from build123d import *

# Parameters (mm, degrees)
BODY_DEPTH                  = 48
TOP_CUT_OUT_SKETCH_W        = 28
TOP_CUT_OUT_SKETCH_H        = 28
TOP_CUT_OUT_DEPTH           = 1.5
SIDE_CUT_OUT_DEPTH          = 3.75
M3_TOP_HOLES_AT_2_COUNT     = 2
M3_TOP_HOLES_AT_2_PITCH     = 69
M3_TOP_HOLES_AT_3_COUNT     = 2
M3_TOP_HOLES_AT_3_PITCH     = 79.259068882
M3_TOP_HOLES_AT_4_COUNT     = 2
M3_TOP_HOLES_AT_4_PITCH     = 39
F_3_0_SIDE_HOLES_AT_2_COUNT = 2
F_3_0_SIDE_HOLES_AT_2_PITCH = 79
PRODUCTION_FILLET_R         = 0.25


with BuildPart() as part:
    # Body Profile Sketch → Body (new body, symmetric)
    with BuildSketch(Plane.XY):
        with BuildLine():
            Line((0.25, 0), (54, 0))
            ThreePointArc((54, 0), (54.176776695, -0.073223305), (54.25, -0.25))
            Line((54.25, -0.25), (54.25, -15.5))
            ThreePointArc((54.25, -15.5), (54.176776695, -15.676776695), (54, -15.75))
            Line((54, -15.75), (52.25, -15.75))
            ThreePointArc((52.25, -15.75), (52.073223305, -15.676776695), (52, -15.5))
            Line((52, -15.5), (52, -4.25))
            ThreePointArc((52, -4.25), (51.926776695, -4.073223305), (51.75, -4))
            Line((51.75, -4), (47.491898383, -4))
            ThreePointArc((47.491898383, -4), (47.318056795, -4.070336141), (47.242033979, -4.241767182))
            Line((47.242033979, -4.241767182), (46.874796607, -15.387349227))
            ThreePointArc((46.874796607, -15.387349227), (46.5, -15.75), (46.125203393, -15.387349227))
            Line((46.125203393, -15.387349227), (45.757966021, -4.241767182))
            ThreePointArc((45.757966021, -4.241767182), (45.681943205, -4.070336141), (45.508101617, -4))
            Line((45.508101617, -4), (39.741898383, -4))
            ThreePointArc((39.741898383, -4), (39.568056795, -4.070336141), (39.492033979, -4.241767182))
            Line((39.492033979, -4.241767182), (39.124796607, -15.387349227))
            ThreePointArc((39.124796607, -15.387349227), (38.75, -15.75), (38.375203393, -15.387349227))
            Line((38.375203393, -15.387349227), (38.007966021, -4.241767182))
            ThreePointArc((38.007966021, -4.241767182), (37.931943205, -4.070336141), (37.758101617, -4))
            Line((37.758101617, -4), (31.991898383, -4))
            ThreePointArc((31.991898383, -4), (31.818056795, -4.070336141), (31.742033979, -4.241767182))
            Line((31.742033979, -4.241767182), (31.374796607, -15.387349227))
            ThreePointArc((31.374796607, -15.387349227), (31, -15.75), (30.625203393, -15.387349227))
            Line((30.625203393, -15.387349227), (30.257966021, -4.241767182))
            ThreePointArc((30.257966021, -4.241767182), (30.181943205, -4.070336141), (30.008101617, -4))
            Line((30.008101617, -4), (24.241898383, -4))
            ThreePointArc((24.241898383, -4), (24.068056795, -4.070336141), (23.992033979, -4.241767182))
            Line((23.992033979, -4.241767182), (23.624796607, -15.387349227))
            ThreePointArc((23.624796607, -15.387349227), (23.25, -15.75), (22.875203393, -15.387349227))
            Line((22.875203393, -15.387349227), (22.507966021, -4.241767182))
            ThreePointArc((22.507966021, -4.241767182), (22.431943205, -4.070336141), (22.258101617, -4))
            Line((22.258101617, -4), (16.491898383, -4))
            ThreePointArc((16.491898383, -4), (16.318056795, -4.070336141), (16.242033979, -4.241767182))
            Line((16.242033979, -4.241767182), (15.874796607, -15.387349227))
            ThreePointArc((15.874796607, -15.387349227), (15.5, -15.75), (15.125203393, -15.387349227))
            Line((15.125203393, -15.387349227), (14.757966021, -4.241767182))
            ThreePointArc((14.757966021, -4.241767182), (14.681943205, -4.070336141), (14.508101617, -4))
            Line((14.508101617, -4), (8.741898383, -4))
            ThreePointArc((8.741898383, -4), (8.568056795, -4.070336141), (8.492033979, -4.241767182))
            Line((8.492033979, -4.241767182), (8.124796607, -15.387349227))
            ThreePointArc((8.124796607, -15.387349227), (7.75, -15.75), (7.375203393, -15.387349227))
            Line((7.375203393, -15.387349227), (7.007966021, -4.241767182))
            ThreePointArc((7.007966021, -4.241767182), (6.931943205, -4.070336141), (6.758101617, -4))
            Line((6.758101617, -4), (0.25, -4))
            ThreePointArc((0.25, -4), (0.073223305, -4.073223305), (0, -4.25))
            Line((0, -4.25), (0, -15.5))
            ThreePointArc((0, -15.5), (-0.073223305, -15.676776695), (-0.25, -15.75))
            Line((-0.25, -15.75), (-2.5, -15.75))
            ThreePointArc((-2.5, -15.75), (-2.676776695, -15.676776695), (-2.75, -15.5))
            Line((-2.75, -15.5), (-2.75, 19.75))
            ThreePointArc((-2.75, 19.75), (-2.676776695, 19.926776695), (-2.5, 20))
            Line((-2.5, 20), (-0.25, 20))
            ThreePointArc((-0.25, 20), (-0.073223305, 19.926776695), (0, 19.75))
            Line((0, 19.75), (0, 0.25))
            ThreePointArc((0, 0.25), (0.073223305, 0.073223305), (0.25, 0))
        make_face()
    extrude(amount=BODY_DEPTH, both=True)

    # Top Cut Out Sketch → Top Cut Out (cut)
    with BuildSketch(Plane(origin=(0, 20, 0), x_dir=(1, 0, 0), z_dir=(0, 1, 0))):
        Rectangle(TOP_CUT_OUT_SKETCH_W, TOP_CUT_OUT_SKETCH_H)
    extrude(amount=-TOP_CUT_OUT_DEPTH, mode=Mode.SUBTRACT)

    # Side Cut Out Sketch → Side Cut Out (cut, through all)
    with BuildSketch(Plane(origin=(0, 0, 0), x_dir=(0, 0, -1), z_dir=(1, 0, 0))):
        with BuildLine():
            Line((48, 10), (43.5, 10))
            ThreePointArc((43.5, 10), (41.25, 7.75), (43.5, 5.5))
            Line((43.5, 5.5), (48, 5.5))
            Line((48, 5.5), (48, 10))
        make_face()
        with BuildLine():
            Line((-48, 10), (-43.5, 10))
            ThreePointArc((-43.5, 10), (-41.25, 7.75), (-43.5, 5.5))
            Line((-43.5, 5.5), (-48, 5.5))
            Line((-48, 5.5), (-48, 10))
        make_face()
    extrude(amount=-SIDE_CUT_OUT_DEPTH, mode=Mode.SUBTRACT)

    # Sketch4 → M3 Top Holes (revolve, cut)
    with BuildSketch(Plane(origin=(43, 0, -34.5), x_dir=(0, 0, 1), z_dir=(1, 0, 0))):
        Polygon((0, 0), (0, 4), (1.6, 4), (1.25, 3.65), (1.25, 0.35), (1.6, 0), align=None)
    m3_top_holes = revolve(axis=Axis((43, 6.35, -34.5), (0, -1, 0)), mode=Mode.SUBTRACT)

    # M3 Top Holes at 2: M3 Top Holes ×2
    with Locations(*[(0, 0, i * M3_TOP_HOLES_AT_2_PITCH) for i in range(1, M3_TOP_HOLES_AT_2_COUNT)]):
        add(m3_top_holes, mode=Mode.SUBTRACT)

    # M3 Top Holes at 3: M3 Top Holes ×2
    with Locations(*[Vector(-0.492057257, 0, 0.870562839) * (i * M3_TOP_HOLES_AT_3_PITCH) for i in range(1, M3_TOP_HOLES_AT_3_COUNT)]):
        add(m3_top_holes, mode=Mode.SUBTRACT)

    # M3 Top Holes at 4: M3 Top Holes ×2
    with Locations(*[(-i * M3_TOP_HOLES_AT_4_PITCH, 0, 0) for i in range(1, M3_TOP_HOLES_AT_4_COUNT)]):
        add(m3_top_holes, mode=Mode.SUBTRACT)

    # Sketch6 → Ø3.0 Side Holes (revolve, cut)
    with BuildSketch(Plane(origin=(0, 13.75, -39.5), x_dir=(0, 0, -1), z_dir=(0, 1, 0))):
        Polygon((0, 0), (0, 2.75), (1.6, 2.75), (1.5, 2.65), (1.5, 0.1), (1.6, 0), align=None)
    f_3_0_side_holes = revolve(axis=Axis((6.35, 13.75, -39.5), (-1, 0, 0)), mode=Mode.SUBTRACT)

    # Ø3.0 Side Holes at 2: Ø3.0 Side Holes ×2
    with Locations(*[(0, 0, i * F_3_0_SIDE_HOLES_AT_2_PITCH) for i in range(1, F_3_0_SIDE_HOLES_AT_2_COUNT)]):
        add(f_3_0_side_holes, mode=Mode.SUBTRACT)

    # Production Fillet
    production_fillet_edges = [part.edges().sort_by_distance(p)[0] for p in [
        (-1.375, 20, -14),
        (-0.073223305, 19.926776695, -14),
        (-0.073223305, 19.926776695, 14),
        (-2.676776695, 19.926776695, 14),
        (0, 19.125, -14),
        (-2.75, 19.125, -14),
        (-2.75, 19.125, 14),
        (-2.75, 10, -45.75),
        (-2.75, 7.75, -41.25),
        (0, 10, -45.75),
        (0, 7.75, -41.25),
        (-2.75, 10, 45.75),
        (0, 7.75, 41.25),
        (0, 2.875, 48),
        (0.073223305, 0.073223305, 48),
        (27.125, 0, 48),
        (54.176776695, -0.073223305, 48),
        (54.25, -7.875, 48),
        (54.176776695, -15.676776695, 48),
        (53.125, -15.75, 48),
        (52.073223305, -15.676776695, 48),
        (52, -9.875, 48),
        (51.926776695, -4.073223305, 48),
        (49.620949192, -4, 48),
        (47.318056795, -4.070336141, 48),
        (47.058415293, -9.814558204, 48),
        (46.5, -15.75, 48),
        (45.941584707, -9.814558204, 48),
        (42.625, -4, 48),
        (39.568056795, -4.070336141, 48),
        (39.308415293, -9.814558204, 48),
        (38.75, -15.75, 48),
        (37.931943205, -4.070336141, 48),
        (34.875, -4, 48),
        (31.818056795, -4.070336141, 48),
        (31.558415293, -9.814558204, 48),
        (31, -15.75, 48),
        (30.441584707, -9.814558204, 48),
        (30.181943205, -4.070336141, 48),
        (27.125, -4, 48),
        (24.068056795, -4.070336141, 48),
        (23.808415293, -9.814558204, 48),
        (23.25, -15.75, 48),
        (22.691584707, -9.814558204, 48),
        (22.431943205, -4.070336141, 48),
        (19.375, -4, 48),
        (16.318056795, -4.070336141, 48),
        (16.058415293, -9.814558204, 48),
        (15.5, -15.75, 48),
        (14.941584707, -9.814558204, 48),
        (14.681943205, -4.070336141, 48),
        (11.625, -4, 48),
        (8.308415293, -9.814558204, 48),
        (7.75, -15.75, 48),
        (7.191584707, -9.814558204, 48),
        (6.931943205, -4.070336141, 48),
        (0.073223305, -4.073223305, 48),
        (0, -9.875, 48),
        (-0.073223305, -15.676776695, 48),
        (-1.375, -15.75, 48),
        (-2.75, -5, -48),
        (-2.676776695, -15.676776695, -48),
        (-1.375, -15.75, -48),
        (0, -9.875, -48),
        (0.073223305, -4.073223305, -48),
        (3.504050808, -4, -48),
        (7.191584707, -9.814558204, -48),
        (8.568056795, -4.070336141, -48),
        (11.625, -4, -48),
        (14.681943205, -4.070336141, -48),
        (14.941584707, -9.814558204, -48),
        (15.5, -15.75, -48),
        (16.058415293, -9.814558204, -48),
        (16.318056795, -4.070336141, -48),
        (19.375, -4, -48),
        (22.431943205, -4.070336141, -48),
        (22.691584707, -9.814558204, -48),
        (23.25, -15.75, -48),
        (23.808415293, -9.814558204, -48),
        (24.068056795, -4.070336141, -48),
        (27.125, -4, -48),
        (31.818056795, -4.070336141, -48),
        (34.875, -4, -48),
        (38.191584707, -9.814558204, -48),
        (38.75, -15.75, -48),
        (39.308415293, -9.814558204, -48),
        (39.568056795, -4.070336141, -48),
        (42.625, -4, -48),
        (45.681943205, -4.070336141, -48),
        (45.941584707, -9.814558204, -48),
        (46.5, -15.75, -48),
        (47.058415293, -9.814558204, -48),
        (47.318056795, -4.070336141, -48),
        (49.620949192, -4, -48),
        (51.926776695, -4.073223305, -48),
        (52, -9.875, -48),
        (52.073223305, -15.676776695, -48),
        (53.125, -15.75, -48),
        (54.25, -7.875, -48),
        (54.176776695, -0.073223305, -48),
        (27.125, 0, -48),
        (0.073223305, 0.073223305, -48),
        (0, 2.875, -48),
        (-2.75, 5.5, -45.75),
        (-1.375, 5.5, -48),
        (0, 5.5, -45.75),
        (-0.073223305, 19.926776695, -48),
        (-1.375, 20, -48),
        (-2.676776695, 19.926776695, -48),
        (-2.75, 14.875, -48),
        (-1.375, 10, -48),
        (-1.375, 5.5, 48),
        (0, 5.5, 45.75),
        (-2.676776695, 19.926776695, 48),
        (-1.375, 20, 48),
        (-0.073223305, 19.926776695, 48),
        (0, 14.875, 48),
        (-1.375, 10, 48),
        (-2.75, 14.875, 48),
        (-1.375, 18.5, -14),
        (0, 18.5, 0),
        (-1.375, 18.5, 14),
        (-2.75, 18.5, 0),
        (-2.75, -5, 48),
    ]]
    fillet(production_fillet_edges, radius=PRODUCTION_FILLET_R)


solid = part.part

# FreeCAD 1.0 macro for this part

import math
import FreeCAD as App
import Part
import Sketcher
Q = App.Units.Quantity


def edges_at(feature, points):
    """Names of the edges that pass closest to the given points."""
    edges = feature.Shape.Edges
    near = lambda p: min(range(len(edges)), key=lambda i: edges[i].distToShape(Part.Vertex(*p))[0])
    return sorted({f"Edge{near(p) + 1}" for p in points})

doc = App.newDocument("Part")
params = doc.addObject("Spreadsheet::Sheet", "Params")
for row, (alias, value) in enumerate([
    ("sketch1_radius", "0.25 mm"),
    ("sketch1_height", "19.5 mm"),
    ("sketch1_width", "2.25 mm"),
    ("sketch1_height2", "35.25 mm"),
    ("pad1_length", "96 mm"),
    ("sketch2_width", "28 mm"),
    ("pocket1_length", "1.5 mm"),
    ("sketch3_radius", "2.25 mm"),
    ("sketch4_width", "4 mm"),
    ("sketch4_width2", "3.3 mm"),
    ("sketch4_height", "1.6 mm"),
    ("groove_angle", "360 deg"),
    ("linearpattern_pitch", "69 mm"),
    ("linearpattern2_pitch", "79.259069 mm"),
    ("linearpattern3_pitch", "39 mm"),
    ("sketch5_height", "1.6 mm"),
    ("sketch5_width", "2.75 mm"),
    ("sketch5_width2", "2.55 mm"),
    ("groove2_angle", "360 deg"),
    ("linearpattern4_pitch", "79 mm"),
    ("fillet_radius", "0.25 mm"),
], start=1):
    params.set(f"A{row}", alias)
    params.set(f"B{row}", "=" + value)
    params.setAlias(f"B{row}", alias)

body = doc.addObject("PartDesign::Body", "Body")

# Sketch on XY plane
sketch1 = body.newObject("Sketcher::SketchObject", "Sketch")
sketch1.AttachmentSupport = (doc.getObject("XY_Plane"), [""])
sketch1.MapMode = "FlatFace"
sketch1.addGeometry([
    Part.LineSegment(App.Vector(54, 0, 0), App.Vector(0.25, 0, 0)),  # 0
    Part.ArcOfCircle(Part.Circle(App.Vector(0.25, 0.25, 0), App.Vector(0, 0, 1), 0.25), math.radians(-180), math.radians(-90)),  # 1
    Part.LineSegment(App.Vector(0, 0.25, 0), App.Vector(0, 19.75, 0)),  # 2
    Part.ArcOfCircle(Part.Circle(App.Vector(-0.25, 19.75, 0), App.Vector(0, 0, 1), 0.25), math.radians(0), math.radians(90)),  # 3
    Part.LineSegment(App.Vector(-0.25, 20, 0), App.Vector(-2.5, 20, 0)),  # 4
    Part.ArcOfCircle(Part.Circle(App.Vector(-2.5, 19.75, 0), App.Vector(0, 0, 1), 0.25), math.radians(90), math.radians(180)),  # 5
    Part.LineSegment(App.Vector(-2.75, 19.75, 0), App.Vector(-2.75, -15.5, 0)),  # 6
    Part.ArcOfCircle(Part.Circle(App.Vector(-2.5, -15.5, 0), App.Vector(0, 0, 1), 0.25), math.radians(-180), math.radians(-90)),  # 7
    Part.LineSegment(App.Vector(-2.5, -15.75, 0), App.Vector(-0.25, -15.75, 0)),  # 8
    Part.ArcOfCircle(Part.Circle(App.Vector(-0.25, -15.5, 0), App.Vector(0, 0, 1), 0.25), math.radians(-90), math.radians(0)),  # 9
    Part.LineSegment(App.Vector(0, -15.5, 0), App.Vector(0, -4.25, 0)),  # 10
    Part.ArcOfCircle(Part.Circle(App.Vector(0.25, -4.25, 0), App.Vector(0, 0, 1), 0.25), math.radians(90), math.radians(180)),  # 11
    Part.LineSegment(App.Vector(0.25, -4, 0), App.Vector(6.76, -4, 0)),  # 12
    Part.ArcOfCircle(Part.Circle(App.Vector(6.76, -4.25, 0), App.Vector(0, 0, 1), 0.25), math.radians(2), math.radians(90)),  # 13
    Part.LineSegment(App.Vector(7.01, -4.24, 0), App.Vector(7.38, -15.39, 0)),  # 14
    Part.ArcOfCircle(Part.Circle(App.Vector(7.75, -15.38, 0), App.Vector(0, 0, 1), 0.38), math.radians(-178), math.radians(-2)),  # 15
    Part.LineSegment(App.Vector(8.12, -15.39, 0), App.Vector(8.49, -4.24, 0)),  # 16
    Part.ArcOfCircle(Part.Circle(App.Vector(8.74, -4.25, 0), App.Vector(0, 0, 1), 0.25), math.radians(90), math.radians(178)),  # 17
    Part.LineSegment(App.Vector(8.74, -4, 0), App.Vector(14.51, -4, 0)),  # 18
    Part.ArcOfCircle(Part.Circle(App.Vector(14.51, -4.25, 0), App.Vector(0, 0, 1), 0.25), math.radians(2), math.radians(90)),  # 19
    Part.LineSegment(App.Vector(14.76, -4.24, 0), App.Vector(15.13, -15.39, 0)),  # 20
    Part.ArcOfCircle(Part.Circle(App.Vector(15.5, -15.38, 0), App.Vector(0, 0, 1), 0.38), math.radians(-178), math.radians(-2)),  # 21
    Part.LineSegment(App.Vector(15.87, -15.39, 0), App.Vector(16.24, -4.24, 0)),  # 22
    Part.ArcOfCircle(Part.Circle(App.Vector(16.49, -4.25, 0), App.Vector(0, 0, 1), 0.25), math.radians(90), math.radians(178)),  # 23
    Part.LineSegment(App.Vector(16.49, -4, 0), App.Vector(22.26, -4, 0)),  # 24
    Part.ArcOfCircle(Part.Circle(App.Vector(22.26, -4.25, 0), App.Vector(0, 0, 1), 0.25), math.radians(2), math.radians(90)),  # 25
    Part.LineSegment(App.Vector(22.51, -4.24, 0), App.Vector(22.88, -15.39, 0)),  # 26
    Part.ArcOfCircle(Part.Circle(App.Vector(23.25, -15.38, 0), App.Vector(0, 0, 1), 0.38), math.radians(-178), math.radians(-2)),  # 27
    Part.LineSegment(App.Vector(23.62, -15.39, 0), App.Vector(23.99, -4.24, 0)),  # 28
    Part.ArcOfCircle(Part.Circle(App.Vector(24.24, -4.25, 0), App.Vector(0, 0, 1), 0.25), math.radians(90), math.radians(178)),  # 29
    Part.LineSegment(App.Vector(24.24, -4, 0), App.Vector(30.01, -4, 0)),  # 30
    Part.ArcOfCircle(Part.Circle(App.Vector(30.01, -4.25, 0), App.Vector(0, 0, 1), 0.25), math.radians(2), math.radians(90)),  # 31
    Part.LineSegment(App.Vector(30.26, -4.24, 0), App.Vector(30.63, -15.39, 0)),  # 32
    Part.ArcOfCircle(Part.Circle(App.Vector(31, -15.38, 0), App.Vector(0, 0, 1), 0.38), math.radians(-178), math.radians(-2)),  # 33
    Part.LineSegment(App.Vector(31.37, -15.39, 0), App.Vector(31.74, -4.24, 0)),  # 34
    Part.ArcOfCircle(Part.Circle(App.Vector(31.99, -4.25, 0), App.Vector(0, 0, 1), 0.25), math.radians(90), math.radians(178)),  # 35
    Part.LineSegment(App.Vector(31.99, -4, 0), App.Vector(37.76, -4, 0)),  # 36
    Part.ArcOfCircle(Part.Circle(App.Vector(37.76, -4.25, 0), App.Vector(0, 0, 1), 0.25), math.radians(2), math.radians(90)),  # 37
    Part.LineSegment(App.Vector(38.01, -4.24, 0), App.Vector(38.38, -15.39, 0)),  # 38
    Part.ArcOfCircle(Part.Circle(App.Vector(38.75, -15.38, 0), App.Vector(0, 0, 1), 0.38), math.radians(-178), math.radians(-2)),  # 39
    Part.LineSegment(App.Vector(39.12, -15.39, 0), App.Vector(39.49, -4.24, 0)),  # 40
    Part.ArcOfCircle(Part.Circle(App.Vector(39.74, -4.25, 0), App.Vector(0, 0, 1), 0.25), math.radians(90), math.radians(178)),  # 41
    Part.LineSegment(App.Vector(39.74, -4, 0), App.Vector(45.51, -4, 0)),  # 42
    Part.ArcOfCircle(Part.Circle(App.Vector(45.51, -4.25, 0), App.Vector(0, 0, 1), 0.25), math.radians(2), math.radians(90)),  # 43
    Part.LineSegment(App.Vector(45.76, -4.24, 0), App.Vector(46.13, -15.39, 0)),  # 44
    Part.ArcOfCircle(Part.Circle(App.Vector(46.5, -15.38, 0), App.Vector(0, 0, 1), 0.38), math.radians(-178), math.radians(-2)),  # 45
    Part.LineSegment(App.Vector(46.87, -15.39, 0), App.Vector(47.24, -4.24, 0)),  # 46
    Part.ArcOfCircle(Part.Circle(App.Vector(47.49, -4.25, 0), App.Vector(0, 0, 1), 0.25), math.radians(90), math.radians(178)),  # 47
    Part.LineSegment(App.Vector(47.49, -4, 0), App.Vector(51.75, -4, 0)),  # 48
    Part.ArcOfCircle(Part.Circle(App.Vector(51.75, -4.25, 0), App.Vector(0, 0, 1), 0.25), math.radians(0), math.radians(90)),  # 49
    Part.LineSegment(App.Vector(52, -4.25, 0), App.Vector(52, -15.5, 0)),  # 50
    Part.ArcOfCircle(Part.Circle(App.Vector(52.25, -15.5, 0), App.Vector(0, 0, 1), 0.25), math.radians(-180), math.radians(-90)),  # 51
    Part.LineSegment(App.Vector(52.25, -15.75, 0), App.Vector(54, -15.75, 0)),  # 52
    Part.ArcOfCircle(Part.Circle(App.Vector(54, -15.5, 0), App.Vector(0, 0, 1), 0.25), math.radians(-90), math.radians(0)),  # 53
    Part.LineSegment(App.Vector(54.25, -15.5, 0), App.Vector(54.25, -0.25, 0)),  # 54
    Part.ArcOfCircle(Part.Circle(App.Vector(54, -0.25, 0), App.Vector(0, 0, 1), 0.25), math.radians(0), math.radians(90)),  # 55
], False)
sketch1.addConstraint([
    Sketcher.Constraint("Tangent", 0, 2, 1, 2),
    Sketcher.Constraint("Tangent", 1, 1, 2, 1),
    Sketcher.Constraint("Tangent", 2, 2, 3, 1),
    Sketcher.Constraint("Tangent", 3, 2, 4, 1),
    Sketcher.Constraint("Tangent", 4, 2, 5, 1),
    Sketcher.Constraint("Tangent", 5, 2, 6, 1),
    Sketcher.Constraint("Tangent", 6, 2, 7, 1),
    Sketcher.Constraint("Tangent", 7, 2, 8, 1),
    Sketcher.Constraint("Tangent", 8, 2, 9, 1),
    Sketcher.Constraint("Tangent", 9, 2, 10, 1),
    Sketcher.Constraint("Tangent", 10, 2, 11, 2),
    Sketcher.Constraint("Tangent", 11, 1, 12, 1),
    Sketcher.Constraint("Tangent", 12, 2, 13, 2),
    Sketcher.Constraint("Tangent", 13, 1, 14, 1),
    Sketcher.Constraint("Tangent", 14, 2, 15, 1),
    Sketcher.Constraint("Tangent", 15, 2, 16, 1),
    Sketcher.Constraint("Tangent", 16, 2, 17, 2),
    Sketcher.Constraint("Tangent", 17, 1, 18, 1),
    Sketcher.Constraint("Tangent", 18, 2, 19, 2),
    Sketcher.Constraint("Tangent", 19, 1, 20, 1),
    Sketcher.Constraint("Tangent", 20, 2, 21, 1),
    Sketcher.Constraint("Tangent", 21, 2, 22, 1),
    Sketcher.Constraint("Tangent", 22, 2, 23, 2),
    Sketcher.Constraint("Tangent", 23, 1, 24, 1),
    Sketcher.Constraint("Tangent", 24, 2, 25, 2),
    Sketcher.Constraint("Tangent", 25, 1, 26, 1),
    Sketcher.Constraint("Tangent", 26, 2, 27, 1),
    Sketcher.Constraint("Tangent", 27, 2, 28, 1),
    Sketcher.Constraint("Tangent", 28, 2, 29, 2),
    Sketcher.Constraint("Tangent", 29, 1, 30, 1),
    Sketcher.Constraint("Tangent", 30, 2, 31, 2),
    Sketcher.Constraint("Tangent", 31, 1, 32, 1),
    Sketcher.Constraint("Tangent", 32, 2, 33, 1),
    Sketcher.Constraint("Tangent", 33, 2, 34, 1),
    Sketcher.Constraint("Tangent", 34, 2, 35, 2),
    Sketcher.Constraint("Tangent", 35, 1, 36, 1),
    Sketcher.Constraint("Tangent", 36, 2, 37, 2),
    Sketcher.Constraint("Tangent", 37, 1, 38, 1),
    Sketcher.Constraint("Tangent", 38, 2, 39, 1),
    Sketcher.Constraint("Tangent", 39, 2, 40, 1),
    Sketcher.Constraint("Tangent", 40, 2, 41, 2),
    Sketcher.Constraint("Tangent", 41, 1, 42, 1),
    Sketcher.Constraint("Tangent", 42, 2, 43, 2),
    Sketcher.Constraint("Tangent", 43, 1, 44, 1),
    Sketcher.Constraint("Tangent", 44, 2, 45, 1),
    Sketcher.Constraint("Tangent", 45, 2, 46, 1),
    Sketcher.Constraint("Tangent", 46, 2, 47, 2),
    Sketcher.Constraint("Tangent", 47, 1, 48, 1),
    Sketcher.Constraint("Tangent", 48, 2, 49, 2),
    Sketcher.Constraint("Tangent", 49, 1, 50, 1),
    Sketcher.Constraint("Tangent", 50, 2, 51, 1),
    Sketcher.Constraint("Tangent", 51, 2, 52, 1),
    Sketcher.Constraint("Tangent", 52, 2, 53, 1),
    Sketcher.Constraint("Tangent", 53, 2, 54, 1),
    Sketcher.Constraint("Tangent", 54, 2, 55, 1),
    Sketcher.Constraint("Tangent", 55, 2, 0, 1),
    Sketcher.Constraint("Horizontal", 0),
    Sketcher.Constraint("Vertical", 2),
    Sketcher.Constraint("Horizontal", 4),
    Sketcher.Constraint("Vertical", 6),
    Sketcher.Constraint("Horizontal", 8),
    Sketcher.Constraint("Vertical", 10),
    Sketcher.Constraint("Horizontal", 12),
    Sketcher.Constraint("Horizontal", 18),
    Sketcher.Constraint("Horizontal", 24),
    Sketcher.Constraint("Horizontal", 30),
    Sketcher.Constraint("Horizontal", 36),
    Sketcher.Constraint("Horizontal", 42),
    Sketcher.Constraint("Horizontal", 48),
    Sketcher.Constraint("Vertical", 50),
    Sketcher.Constraint("Horizontal", 52),
    Sketcher.Constraint("Vertical", 54),
    Sketcher.Constraint("Equal", 1, 3),
    Sketcher.Constraint("Equal", 3, 5),
    Sketcher.Constraint("Equal", 5, 7),
    Sketcher.Constraint("Equal", 7, 9),
    Sketcher.Constraint("Equal", 9, 11),
    Sketcher.Constraint("Equal", 11, 13),
    Sketcher.Constraint("Equal", 13, 17),
    Sketcher.Constraint("Equal", 17, 19),
    Sketcher.Constraint("Equal", 15, 21),
    Sketcher.Constraint("Equal", 19, 23),
    Sketcher.Constraint("Equal", 23, 25),
    Sketcher.Constraint("Equal", 21, 27),
    Sketcher.Constraint("Equal", 25, 29),
    Sketcher.Constraint("Equal", 29, 31),
    Sketcher.Constraint("Equal", 27, 33),
    Sketcher.Constraint("Equal", 31, 35),
    Sketcher.Constraint("Equal", 35, 37),
    Sketcher.Constraint("Equal", 33, 39),
    Sketcher.Constraint("Equal", 37, 41),
    Sketcher.Constraint("Equal", 41, 43),
    Sketcher.Constraint("Equal", 39, 45),
    Sketcher.Constraint("Equal", 43, 47),
    Sketcher.Constraint("Equal", 47, 49),
    Sketcher.Constraint("Equal", 49, 51),
    Sketcher.Constraint("Equal", 51, 53),
    Sketcher.Constraint("Equal", 53, 55),
    Sketcher.Constraint("PointOnObject", 0, 2, -1),
    Sketcher.Constraint("PointOnObject", 1, 1, -2),
    Sketcher.Constraint("PointOnObject", 9, 2, -2),
    Sketcher.Constraint("Parallel", 14, 20),
    Sketcher.Constraint("Parallel", 16, 22),
    Sketcher.Constraint("Parallel", 20, 26),
    Sketcher.Constraint("Parallel", 22, 28),
    Sketcher.Constraint("Parallel", 26, 32),
    Sketcher.Constraint("Parallel", 28, 34),
    Sketcher.Constraint("Parallel", 32, 38),
    Sketcher.Constraint("Parallel", 34, 40),
    Sketcher.Constraint("Parallel", 38, 44),
    Sketcher.Constraint("Parallel", 40, 46),
    Sketcher.Constraint("Horizontal", 13, 3, 17, 3),
    Sketcher.Constraint("Horizontal", 15, 3, 21, 3),
    Sketcher.Constraint("Horizontal", 19, 3, 23, 3),
    Sketcher.Constraint("Horizontal", 21, 3, 27, 3),
    Sketcher.Constraint("Horizontal", 25, 3, 29, 3),
    Sketcher.Constraint("Horizontal", 27, 3, 33, 3),
    Sketcher.Constraint("Horizontal", 31, 3, 35, 3),
    Sketcher.Constraint("Horizontal", 33, 3, 39, 3),
    Sketcher.Constraint("Horizontal", 37, 3, 41, 3),
    Sketcher.Constraint("Horizontal", 39, 3, 45, 3),
    Sketcher.Constraint("Horizontal", 43, 3, 47, 3),
    Sketcher.Constraint("Horizontal", 9, 3, 51, 3),
    Sketcher.Constraint("Horizontal", 14, 2, 15, 2),
    Sketcher.Constraint("Equal", 18, 24),
    Sketcher.Constraint("Equal", 24, 30),
    Sketcher.Constraint("Equal", 30, 36),
    Sketcher.Constraint("Equal", 36, 42),
    Sketcher.Constraint("Radius", 1, Q("0.25 mm")),
    Sketcher.Constraint("DistanceY", 2, 1, 2, 2, Q("19.5 mm")),
    Sketcher.Constraint("DistanceX", -1, 1, 33, 3, Q("31 mm")),
    Sketcher.Constraint("DistanceX", -1, 1, 53, 3, Q("54 mm")),
    Sketcher.Constraint("DistanceY", 11, 1, -1, 1, Q("4 mm")),
    Sketcher.Constraint("DistanceX", -1, 1, 49, 1, Q("52 mm")),
    Sketcher.Constraint("Radius", 15, Q("0.375 mm")),
    Sketcher.Constraint("DistanceX", 4, 2, 4, 1, Q("2.25 mm")),
    Sketcher.Constraint("DistanceY", 6, 2, 6, 1, Q("35.25 mm")),
    Sketcher.Constraint("DistanceX", -1, 1, 21, 3, Q("15.5 mm")),
    Sketcher.Constraint("DistanceX", 12, 1, 12, 2, Q("6.508102 mm")),
    Sketcher.Constraint("DistanceY", 15, 3, -1, 1, Q("15.375 mm")),
])
sketch1.setExpression("Constraints[128]", "Params.sketch1_radius")
sketch1.setExpression("Constraints[129]", "Params.sketch1_height")
sketch1.setExpression("Constraints[135]", "Params.sketch1_width")
sketch1.setExpression("Constraints[136]", "Params.sketch1_height2")
pad1 = body.newObject("PartDesign::Pad", "Pad")
pad1.Profile = sketch1
pad1.setExpression("Length", "Params.pad1_length")
pad1.Midplane = True

# Sketch on XZ plane
sketch2 = body.newObject("Sketcher::SketchObject", "Sketch001")
sketch2.AttachmentSupport = (doc.getObject("XZ_Plane"), [""])
sketch2.MapMode = "FlatFace"
sketch2.AttachmentOffset = App.Placement(App.Vector(0, 0, -20), App.Rotation())
sketch2.addGeometry([
    Part.LineSegment(App.Vector(-14, -14, 0), App.Vector(-14, 14, 0)),
    Part.LineSegment(App.Vector(-14, 14, 0), App.Vector(14, 14, 0)),
    Part.LineSegment(App.Vector(14, 14, 0), App.Vector(14, -14, 0)),
    Part.LineSegment(App.Vector(14, -14, 0), App.Vector(-14, -14, 0)),
], False)
sketch2.addConstraint([
    Sketcher.Constraint("Coincident", 0, 2, 1, 1),
    Sketcher.Constraint("Coincident", 1, 2, 2, 1),
    Sketcher.Constraint("Coincident", 2, 2, 3, 1),
    Sketcher.Constraint("Coincident", 3, 2, 0, 1),
    Sketcher.Constraint("Vertical", 0),
    Sketcher.Constraint("Horizontal", 1),
    Sketcher.Constraint("Vertical", 2),
    Sketcher.Constraint("Horizontal", 3),
    Sketcher.Constraint("Symmetric", 0, 2, 2, 2, -1, 1),
    Sketcher.Constraint("Equal", 3, 0),
    Sketcher.Constraint("DistanceX", 1, 1, 1, 2, Q("28 mm")),
])
sketch2.setExpression("Constraints[10]", "Params.sketch2_width")
pocket1 = body.newObject("PartDesign::Pocket", "Pocket")
pocket1.Profile = sketch2
pocket1.setExpression("Length", "Params.pocket1_length")
pocket1.Reversed = True

# Sketch on YZ plane
sketch3 = body.newObject("Sketcher::SketchObject", "Sketch002")
sketch3.AttachmentSupport = (doc.getObject("YZ_Plane"), [""])
sketch3.MapMode = "FlatFace"
sketch3.addGeometry([
    Part.LineSegment(App.Vector(10, -48, 0), App.Vector(10, -43.5, 0)),  # 0
    Part.ArcOfCircle(Part.Circle(App.Vector(7.8, -43.5, 0), App.Vector(0, 0, 1), 2.2), math.radians(0), math.radians(180)),  # 1
    Part.LineSegment(App.Vector(5.5, -43.5, 0), App.Vector(5.5, -48, 0)),  # 2
    Part.LineSegment(App.Vector(5.5, -48, 0), App.Vector(10, -48, 0)),  # 3
    Part.LineSegment(App.Vector(10, 43.5, 0), App.Vector(10, 48, 0)),  # 4
    Part.LineSegment(App.Vector(10, 48, 0), App.Vector(5.5, 48, 0)),  # 5
    Part.LineSegment(App.Vector(5.5, 48, 0), App.Vector(5.5, 43.5, 0)),  # 6
    Part.ArcOfCircle(Part.Circle(App.Vector(7.8, 43.5, 0), App.Vector(0, 0, 1), 2.2), math.radians(180), math.radians(360)),  # 7
], False)
sketch3.addConstraint([
    Sketcher.Constraint("Tangent", 0, 2, 1, 1),
    Sketcher.Constraint("Tangent", 1, 2, 2, 1),
    Sketcher.Constraint("Coincident", 2, 2, 3, 1),
    Sketcher.Constraint("Coincident", 3, 2, 0, 1),
    Sketcher.Constraint("Coincident", 4, 2, 5, 1),
    Sketcher.Constraint("Coincident", 5, 2, 6, 1),
    Sketcher.Constraint("Tangent", 6, 2, 7, 1),
    Sketcher.Constraint("Tangent", 7, 2, 4, 1),
    Sketcher.Constraint("Vertical", 0),
    Sketcher.Constraint("Vertical", 2),
    Sketcher.Constraint("Horizontal", 3),
    Sketcher.Constraint("Vertical", 4),
    Sketcher.Constraint("Horizontal", 5),
    Sketcher.Constraint("Vertical", 6),
    Sketcher.Constraint("Equal", 1, 7),
    Sketcher.Constraint("Symmetric", 1, 3, 7, 3, -1),
    Sketcher.Constraint("Equal", 5, 0),
    Sketcher.Constraint("Equal", 2, 4),
    Sketcher.Constraint("Radius", 1, Q("2.25 mm")),
    Sketcher.Constraint("DistanceX", -1, 1, 0, 2, Q("10 mm")),
    Sketcher.Constraint("DistanceY", 2, 2, -1, 1, Q("48 mm")),
])
sketch3.setExpression("Constraints[18]", "Params.sketch3_radius")
pocket2 = body.newObject("PartDesign::Pocket", "Pocket001")
pocket2.Profile = sketch3
pocket2.Type = "ThroughAll"

# Sketch on YZ plane
sketch4 = body.newObject("Sketcher::SketchObject", "Sketch003")
sketch4.AttachmentSupport = (doc.getObject("YZ_Plane"), [""])
sketch4.MapMode = "FlatFace"
sketch4.AttachmentOffset = App.Placement(App.Vector(0, 0, 43), App.Rotation())
sketch4.addGeometry([
    Part.LineSegment(App.Vector(-4, -34.5, 0), App.Vector(0, -34.5, 0)),  # 0
    Part.LineSegment(App.Vector(0, -34.5, 0), App.Vector(0, -32.9, 0)),  # 1
    Part.LineSegment(App.Vector(0, -32.9, 0), App.Vector(-0.35, -33.25, 0)),  # 2
    Part.LineSegment(App.Vector(-0.35, -33.25, 0), App.Vector(-3.65, -33.25, 0)),  # 3
    Part.LineSegment(App.Vector(-3.65, -33.25, 0), App.Vector(-4, -32.9, 0)),  # 4
    Part.LineSegment(App.Vector(-4, -32.9, 0), App.Vector(-4, -34.5, 0)),  # 5
], False)
sketch4.addGeometry(Part.LineSegment(App.Vector(0, -34.5, 0), App.Vector(-4, -34.5, 0)), True)  # axis
sketch4.addConstraint([
    Sketcher.Constraint("Coincident", 0, 2, 1, 1),
    Sketcher.Constraint("Coincident", 1, 2, 2, 1),
    Sketcher.Constraint("Coincident", 2, 2, 3, 1),
    Sketcher.Constraint("Coincident", 3, 2, 4, 1),
    Sketcher.Constraint("Coincident", 4, 2, 5, 1),
    Sketcher.Constraint("Coincident", 5, 2, 0, 1),
    Sketcher.Constraint("Horizontal", 0),
    Sketcher.Constraint("Vertical", 1),
    Sketcher.Constraint("Horizontal", 3),
    Sketcher.Constraint("Vertical", 5),
    Sketcher.Constraint("Horizontal", 6),
    Sketcher.Constraint("Coincident", 6, 1, 0, 2),
    Sketcher.Constraint("PointOnObject", 0, 2, -2),
    Sketcher.Constraint("Perpendicular", 2, 4),
    Sketcher.Constraint("Horizontal", 1, 2, 4, 2),
    Sketcher.Constraint("Vertical", 4, 2, 6, 2),
    Sketcher.Constraint("Equal", 2, 4),
    Sketcher.Constraint("DistanceX", 0, 1, 0, 2, Q("4 mm")),
    Sketcher.Constraint("DistanceX", 3, 2, 3, 1, Q("3.3 mm")),
    Sketcher.Constraint("DistanceY", 1, 1, 1, 2, Q("1.6 mm")),
    Sketcher.Constraint("DistanceY", 0, 2, -1, 1, Q("34.5 mm")),
])
sketch4.setExpression("Constraints[17]", "Params.sketch4_width")
sketch4.setExpression("Constraints[18]", "Params.sketch4_width2")
sketch4.setExpression("Constraints[19]", "Params.sketch4_height")
groove = body.newObject("PartDesign::Groove", "Groove")
groove.Profile = sketch4
groove.ReferenceAxis = (sketch4, ["Axis0"])
groove.setExpression("Angle", "Params.groove_angle")
doc.recompute()

linearpattern = body.newObject("PartDesign::LinearPattern", "LinearPattern")
linearpattern.Originals = [groove]
linearpattern.Direction = (doc.getObject("Z_Axis"), [""])
linearpattern.Mode = "offset"
linearpattern.setExpression("Offset", "Params.linearpattern_pitch")
linearpattern.Occurrences = 2
body.Tip = linearpattern
doc.recompute()

datumline = body.newObject("PartDesign::Line", "DatumLine")
datumline.Placement = App.Placement(App.Vector(0, 0, 0), App.Rotation(App.Vector(0, 0, 1), App.Vector(-0.492057257, 0, 0.870562839)))
linearpattern2 = body.newObject("PartDesign::LinearPattern", "LinearPattern001")
linearpattern2.Originals = [groove]
linearpattern2.Direction = (datumline, [""])
linearpattern2.Mode = "offset"
linearpattern2.setExpression("Offset", "Params.linearpattern2_pitch")
linearpattern2.Occurrences = 2
body.Tip = linearpattern2
doc.recompute()

linearpattern3 = body.newObject("PartDesign::LinearPattern", "LinearPattern002")
linearpattern3.Originals = [groove]
linearpattern3.Direction = (doc.getObject("X_Axis"), [""])
linearpattern3.Mode = "offset"
linearpattern3.setExpression("Offset", "Params.linearpattern3_pitch")
linearpattern3.Occurrences = 2
linearpattern3.Reversed = True
body.Tip = linearpattern3

# Sketch on XZ plane
sketch5 = body.newObject("Sketcher::SketchObject", "Sketch004")
sketch5.AttachmentSupport = (doc.getObject("XZ_Plane"), [""])
sketch5.MapMode = "FlatFace"
sketch5.AttachmentOffset = App.Placement(App.Vector(0, 0, -13.75), App.Rotation())
sketch5.addGeometry([
    Part.LineSegment(App.Vector(-2.75, -39.5, 0), App.Vector(0, -39.5, 0)),  # 0
    Part.LineSegment(App.Vector(0, -39.5, 0), App.Vector(0, -41.1, 0)),  # 1
    Part.LineSegment(App.Vector(0, -41.1, 0), App.Vector(-0.1, -41, 0)),  # 2
    Part.LineSegment(App.Vector(-0.1, -41, 0), App.Vector(-2.65, -41, 0)),  # 3
    Part.LineSegment(App.Vector(-2.65, -41, 0), App.Vector(-2.75, -41.1, 0)),  # 4
    Part.LineSegment(App.Vector(-2.75, -41.1, 0), App.Vector(-2.75, -39.5, 0)),  # 5
], False)
sketch5.addGeometry(Part.LineSegment(App.Vector(0, -39.5, 0), App.Vector(-2.75, -39.5, 0)), True)  # axis
sketch5.addConstraint([
    Sketcher.Constraint("Coincident", 0, 2, 1, 1),
    Sketcher.Constraint("Coincident", 1, 2, 2, 1),
    Sketcher.Constraint("Coincident", 2, 2, 3, 1),
    Sketcher.Constraint("Coincident", 3, 2, 4, 1),
    Sketcher.Constraint("Coincident", 4, 2, 5, 1),
    Sketcher.Constraint("Coincident", 5, 2, 0, 1),
    Sketcher.Constraint("Horizontal", 0),
    Sketcher.Constraint("Vertical", 1),
    Sketcher.Constraint("Horizontal", 3),
    Sketcher.Constraint("Vertical", 5),
    Sketcher.Constraint("Horizontal", 6),
    Sketcher.Constraint("Coincident", 6, 1, 0, 2),
    Sketcher.Constraint("PointOnObject", 0, 2, -2),
    Sketcher.Constraint("Perpendicular", 2, 4),
    Sketcher.Constraint("Horizontal", 1, 2, 4, 2),
    Sketcher.Constraint("Vertical", 4, 2, 6, 2),
    Sketcher.Constraint("Equal", 2, 4),
    Sketcher.Constraint("DistanceY", 1, 2, 1, 1, Q("1.6 mm")),
    Sketcher.Constraint("DistanceY", 2, 2, -1, 1, Q("41 mm")),
    Sketcher.Constraint("DistanceX", 0, 1, 0, 2, Q("2.75 mm")),
    Sketcher.Constraint("DistanceX", 3, 2, 3, 1, Q("2.55 mm")),
])
sketch5.setExpression("Constraints[17]", "Params.sketch5_height")
sketch5.setExpression("Constraints[19]", "Params.sketch5_width")
sketch5.setExpression("Constraints[20]", "Params.sketch5_width2")
groove2 = body.newObject("PartDesign::Groove", "Groove001")
groove2.Profile = sketch5
groove2.ReferenceAxis = (sketch5, ["Axis0"])
groove2.setExpression("Angle", "Params.groove2_angle")
doc.recompute()

linearpattern4 = body.newObject("PartDesign::LinearPattern", "LinearPattern003")
linearpattern4.Originals = [groove2]
linearpattern4.Direction = (doc.getObject("Z_Axis"), [""])
linearpattern4.Mode = "offset"
linearpattern4.setExpression("Offset", "Params.linearpattern4_pitch")
linearpattern4.Occurrences = 2
body.Tip = linearpattern4
doc.recompute()

fillet = body.newObject("PartDesign::Fillet", "Fillet")
fillet.Base = (linearpattern4, edges_at(linearpattern4, [
    (-1.375, 20, -14),
    (-0.073, 19.927, -14),
    (-0.073, 19.927, 14),
    (-2.677, 19.927, 14),
    (0, 19.125, -14),
    (-2.75, 19.125, -14),
    (-2.75, 19.125, 14),
    (-2.75, 10, -45.75),
    (-2.75, 7.75, -41.25),
    (0, 10, -45.75),
    (0, 7.75, -41.25),
    (-2.75, 10, 45.75),
    (0, 7.75, 41.25),
    (0, 2.875, 48),
    (0.073, 0.073, 48),
    (27.125, 0, 48),
    (54.177, -0.073, 48),
    (54.25, -7.875, 48),
    (54.177, -15.677, 48),
    (53.125, -15.75, 48),
    (52.073, -15.677, 48),
    (52, -9.875, 48),
    (51.927, -4.073, 48),
    (49.621, -4, 48),
    (47.318, -4.07, 48),
    (47.058, -9.815, 48),
    (46.5, -15.75, 48),
    (45.942, -9.815, 48),
    (42.625, -4, 48),
    (39.568, -4.07, 48),
    (39.308, -9.815, 48),
    (38.75, -15.75, 48),
    (37.932, -4.07, 48),
    (34.875, -4, 48),
    (31.818, -4.07, 48),
    (31.558, -9.815, 48),
    (31, -15.75, 48),
    (30.442, -9.815, 48),
    (30.182, -4.07, 48),
    (27.125, -4, 48),
    (24.068, -4.07, 48),
    (23.808, -9.815, 48),
    (23.25, -15.75, 48),
    (22.692, -9.815, 48),
    (22.432, -4.07, 48),
    (19.375, -4, 48),
    (16.318, -4.07, 48),
    (16.058, -9.815, 48),
    (15.5, -15.75, 48),
    (14.942, -9.815, 48),
    (14.682, -4.07, 48),
    (11.625, -4, 48),
    (8.308, -9.815, 48),
    (7.75, -15.75, 48),
    (7.192, -9.815, 48),
    (6.932, -4.07, 48),
    (0.073, -4.073, 48),
    (0, -9.875, 48),
    (-0.073, -15.677, 48),
    (-1.375, -15.75, 48),
    (-2.75, -5, -48),
    (-2.677, -15.677, -48),
    (-1.375, -15.75, -48),
    (0, -9.875, -48),
    (0.073, -4.073, -48),
    (3.504, -4, -48),
    (7.192, -9.815, -48),
    (8.568, -4.07, -48),
    (11.625, -4, -48),
    (14.682, -4.07, -48),
    (14.942, -9.815, -48),
    (15.5, -15.75, -48),
    (16.058, -9.815, -48),
    (16.318, -4.07, -48),
    (19.375, -4, -48),
    (22.432, -4.07, -48),
    (22.692, -9.815, -48),
    (23.25, -15.75, -48),
    (23.808, -9.815, -48),
    (24.068, -4.07, -48),
    (27.125, -4, -48),
    (31.818, -4.07, -48),
    (34.875, -4, -48),
    (38.192, -9.815, -48),
    (38.75, -15.75, -48),
    (39.308, -9.815, -48),
    (39.568, -4.07, -48),
    (42.625, -4, -48),
    (45.682, -4.07, -48),
    (45.942, -9.815, -48),
    (46.5, -15.75, -48),
    (47.058, -9.815, -48),
    (47.318, -4.07, -48),
    (49.621, -4, -48),
    (51.927, -4.073, -48),
    (52, -9.875, -48),
    (52.073, -15.677, -48),
    (53.125, -15.75, -48),
    (54.25, -7.875, -48),
    (54.177, -0.073, -48),
    (27.125, 0, -48),
    (0.073, 0.073, -48),
    (0, 2.875, -48),
    (-2.75, 5.5, -45.75),
    (-1.375, 5.5, -48),
    (0, 5.5, -45.75),
    (-0.073, 19.927, -48),
    (-1.375, 20, -48),
    (-2.677, 19.927, -48),
    (-2.75, 14.875, -48),
    (-1.375, 10, -48),
    (-1.375, 5.5, 48),
    (0, 5.5, 45.75),
    (-2.677, 19.927, 48),
    (-1.375, 20, 48),
    (-0.073, 19.927, 48),
    (0, 14.875, 48),
    (-1.375, 10, 48),
    (-2.75, 14.875, 48),
    (-1.375, 18.5, -14),
    (0, 18.5, 0),
    (-1.375, 18.5, 14),
    (-2.75, 18.5, 0),
    (-2.75, -5, 48),
]))
fillet.setExpression("Radius", "Params.fillet_radius")

doc.recompute()
